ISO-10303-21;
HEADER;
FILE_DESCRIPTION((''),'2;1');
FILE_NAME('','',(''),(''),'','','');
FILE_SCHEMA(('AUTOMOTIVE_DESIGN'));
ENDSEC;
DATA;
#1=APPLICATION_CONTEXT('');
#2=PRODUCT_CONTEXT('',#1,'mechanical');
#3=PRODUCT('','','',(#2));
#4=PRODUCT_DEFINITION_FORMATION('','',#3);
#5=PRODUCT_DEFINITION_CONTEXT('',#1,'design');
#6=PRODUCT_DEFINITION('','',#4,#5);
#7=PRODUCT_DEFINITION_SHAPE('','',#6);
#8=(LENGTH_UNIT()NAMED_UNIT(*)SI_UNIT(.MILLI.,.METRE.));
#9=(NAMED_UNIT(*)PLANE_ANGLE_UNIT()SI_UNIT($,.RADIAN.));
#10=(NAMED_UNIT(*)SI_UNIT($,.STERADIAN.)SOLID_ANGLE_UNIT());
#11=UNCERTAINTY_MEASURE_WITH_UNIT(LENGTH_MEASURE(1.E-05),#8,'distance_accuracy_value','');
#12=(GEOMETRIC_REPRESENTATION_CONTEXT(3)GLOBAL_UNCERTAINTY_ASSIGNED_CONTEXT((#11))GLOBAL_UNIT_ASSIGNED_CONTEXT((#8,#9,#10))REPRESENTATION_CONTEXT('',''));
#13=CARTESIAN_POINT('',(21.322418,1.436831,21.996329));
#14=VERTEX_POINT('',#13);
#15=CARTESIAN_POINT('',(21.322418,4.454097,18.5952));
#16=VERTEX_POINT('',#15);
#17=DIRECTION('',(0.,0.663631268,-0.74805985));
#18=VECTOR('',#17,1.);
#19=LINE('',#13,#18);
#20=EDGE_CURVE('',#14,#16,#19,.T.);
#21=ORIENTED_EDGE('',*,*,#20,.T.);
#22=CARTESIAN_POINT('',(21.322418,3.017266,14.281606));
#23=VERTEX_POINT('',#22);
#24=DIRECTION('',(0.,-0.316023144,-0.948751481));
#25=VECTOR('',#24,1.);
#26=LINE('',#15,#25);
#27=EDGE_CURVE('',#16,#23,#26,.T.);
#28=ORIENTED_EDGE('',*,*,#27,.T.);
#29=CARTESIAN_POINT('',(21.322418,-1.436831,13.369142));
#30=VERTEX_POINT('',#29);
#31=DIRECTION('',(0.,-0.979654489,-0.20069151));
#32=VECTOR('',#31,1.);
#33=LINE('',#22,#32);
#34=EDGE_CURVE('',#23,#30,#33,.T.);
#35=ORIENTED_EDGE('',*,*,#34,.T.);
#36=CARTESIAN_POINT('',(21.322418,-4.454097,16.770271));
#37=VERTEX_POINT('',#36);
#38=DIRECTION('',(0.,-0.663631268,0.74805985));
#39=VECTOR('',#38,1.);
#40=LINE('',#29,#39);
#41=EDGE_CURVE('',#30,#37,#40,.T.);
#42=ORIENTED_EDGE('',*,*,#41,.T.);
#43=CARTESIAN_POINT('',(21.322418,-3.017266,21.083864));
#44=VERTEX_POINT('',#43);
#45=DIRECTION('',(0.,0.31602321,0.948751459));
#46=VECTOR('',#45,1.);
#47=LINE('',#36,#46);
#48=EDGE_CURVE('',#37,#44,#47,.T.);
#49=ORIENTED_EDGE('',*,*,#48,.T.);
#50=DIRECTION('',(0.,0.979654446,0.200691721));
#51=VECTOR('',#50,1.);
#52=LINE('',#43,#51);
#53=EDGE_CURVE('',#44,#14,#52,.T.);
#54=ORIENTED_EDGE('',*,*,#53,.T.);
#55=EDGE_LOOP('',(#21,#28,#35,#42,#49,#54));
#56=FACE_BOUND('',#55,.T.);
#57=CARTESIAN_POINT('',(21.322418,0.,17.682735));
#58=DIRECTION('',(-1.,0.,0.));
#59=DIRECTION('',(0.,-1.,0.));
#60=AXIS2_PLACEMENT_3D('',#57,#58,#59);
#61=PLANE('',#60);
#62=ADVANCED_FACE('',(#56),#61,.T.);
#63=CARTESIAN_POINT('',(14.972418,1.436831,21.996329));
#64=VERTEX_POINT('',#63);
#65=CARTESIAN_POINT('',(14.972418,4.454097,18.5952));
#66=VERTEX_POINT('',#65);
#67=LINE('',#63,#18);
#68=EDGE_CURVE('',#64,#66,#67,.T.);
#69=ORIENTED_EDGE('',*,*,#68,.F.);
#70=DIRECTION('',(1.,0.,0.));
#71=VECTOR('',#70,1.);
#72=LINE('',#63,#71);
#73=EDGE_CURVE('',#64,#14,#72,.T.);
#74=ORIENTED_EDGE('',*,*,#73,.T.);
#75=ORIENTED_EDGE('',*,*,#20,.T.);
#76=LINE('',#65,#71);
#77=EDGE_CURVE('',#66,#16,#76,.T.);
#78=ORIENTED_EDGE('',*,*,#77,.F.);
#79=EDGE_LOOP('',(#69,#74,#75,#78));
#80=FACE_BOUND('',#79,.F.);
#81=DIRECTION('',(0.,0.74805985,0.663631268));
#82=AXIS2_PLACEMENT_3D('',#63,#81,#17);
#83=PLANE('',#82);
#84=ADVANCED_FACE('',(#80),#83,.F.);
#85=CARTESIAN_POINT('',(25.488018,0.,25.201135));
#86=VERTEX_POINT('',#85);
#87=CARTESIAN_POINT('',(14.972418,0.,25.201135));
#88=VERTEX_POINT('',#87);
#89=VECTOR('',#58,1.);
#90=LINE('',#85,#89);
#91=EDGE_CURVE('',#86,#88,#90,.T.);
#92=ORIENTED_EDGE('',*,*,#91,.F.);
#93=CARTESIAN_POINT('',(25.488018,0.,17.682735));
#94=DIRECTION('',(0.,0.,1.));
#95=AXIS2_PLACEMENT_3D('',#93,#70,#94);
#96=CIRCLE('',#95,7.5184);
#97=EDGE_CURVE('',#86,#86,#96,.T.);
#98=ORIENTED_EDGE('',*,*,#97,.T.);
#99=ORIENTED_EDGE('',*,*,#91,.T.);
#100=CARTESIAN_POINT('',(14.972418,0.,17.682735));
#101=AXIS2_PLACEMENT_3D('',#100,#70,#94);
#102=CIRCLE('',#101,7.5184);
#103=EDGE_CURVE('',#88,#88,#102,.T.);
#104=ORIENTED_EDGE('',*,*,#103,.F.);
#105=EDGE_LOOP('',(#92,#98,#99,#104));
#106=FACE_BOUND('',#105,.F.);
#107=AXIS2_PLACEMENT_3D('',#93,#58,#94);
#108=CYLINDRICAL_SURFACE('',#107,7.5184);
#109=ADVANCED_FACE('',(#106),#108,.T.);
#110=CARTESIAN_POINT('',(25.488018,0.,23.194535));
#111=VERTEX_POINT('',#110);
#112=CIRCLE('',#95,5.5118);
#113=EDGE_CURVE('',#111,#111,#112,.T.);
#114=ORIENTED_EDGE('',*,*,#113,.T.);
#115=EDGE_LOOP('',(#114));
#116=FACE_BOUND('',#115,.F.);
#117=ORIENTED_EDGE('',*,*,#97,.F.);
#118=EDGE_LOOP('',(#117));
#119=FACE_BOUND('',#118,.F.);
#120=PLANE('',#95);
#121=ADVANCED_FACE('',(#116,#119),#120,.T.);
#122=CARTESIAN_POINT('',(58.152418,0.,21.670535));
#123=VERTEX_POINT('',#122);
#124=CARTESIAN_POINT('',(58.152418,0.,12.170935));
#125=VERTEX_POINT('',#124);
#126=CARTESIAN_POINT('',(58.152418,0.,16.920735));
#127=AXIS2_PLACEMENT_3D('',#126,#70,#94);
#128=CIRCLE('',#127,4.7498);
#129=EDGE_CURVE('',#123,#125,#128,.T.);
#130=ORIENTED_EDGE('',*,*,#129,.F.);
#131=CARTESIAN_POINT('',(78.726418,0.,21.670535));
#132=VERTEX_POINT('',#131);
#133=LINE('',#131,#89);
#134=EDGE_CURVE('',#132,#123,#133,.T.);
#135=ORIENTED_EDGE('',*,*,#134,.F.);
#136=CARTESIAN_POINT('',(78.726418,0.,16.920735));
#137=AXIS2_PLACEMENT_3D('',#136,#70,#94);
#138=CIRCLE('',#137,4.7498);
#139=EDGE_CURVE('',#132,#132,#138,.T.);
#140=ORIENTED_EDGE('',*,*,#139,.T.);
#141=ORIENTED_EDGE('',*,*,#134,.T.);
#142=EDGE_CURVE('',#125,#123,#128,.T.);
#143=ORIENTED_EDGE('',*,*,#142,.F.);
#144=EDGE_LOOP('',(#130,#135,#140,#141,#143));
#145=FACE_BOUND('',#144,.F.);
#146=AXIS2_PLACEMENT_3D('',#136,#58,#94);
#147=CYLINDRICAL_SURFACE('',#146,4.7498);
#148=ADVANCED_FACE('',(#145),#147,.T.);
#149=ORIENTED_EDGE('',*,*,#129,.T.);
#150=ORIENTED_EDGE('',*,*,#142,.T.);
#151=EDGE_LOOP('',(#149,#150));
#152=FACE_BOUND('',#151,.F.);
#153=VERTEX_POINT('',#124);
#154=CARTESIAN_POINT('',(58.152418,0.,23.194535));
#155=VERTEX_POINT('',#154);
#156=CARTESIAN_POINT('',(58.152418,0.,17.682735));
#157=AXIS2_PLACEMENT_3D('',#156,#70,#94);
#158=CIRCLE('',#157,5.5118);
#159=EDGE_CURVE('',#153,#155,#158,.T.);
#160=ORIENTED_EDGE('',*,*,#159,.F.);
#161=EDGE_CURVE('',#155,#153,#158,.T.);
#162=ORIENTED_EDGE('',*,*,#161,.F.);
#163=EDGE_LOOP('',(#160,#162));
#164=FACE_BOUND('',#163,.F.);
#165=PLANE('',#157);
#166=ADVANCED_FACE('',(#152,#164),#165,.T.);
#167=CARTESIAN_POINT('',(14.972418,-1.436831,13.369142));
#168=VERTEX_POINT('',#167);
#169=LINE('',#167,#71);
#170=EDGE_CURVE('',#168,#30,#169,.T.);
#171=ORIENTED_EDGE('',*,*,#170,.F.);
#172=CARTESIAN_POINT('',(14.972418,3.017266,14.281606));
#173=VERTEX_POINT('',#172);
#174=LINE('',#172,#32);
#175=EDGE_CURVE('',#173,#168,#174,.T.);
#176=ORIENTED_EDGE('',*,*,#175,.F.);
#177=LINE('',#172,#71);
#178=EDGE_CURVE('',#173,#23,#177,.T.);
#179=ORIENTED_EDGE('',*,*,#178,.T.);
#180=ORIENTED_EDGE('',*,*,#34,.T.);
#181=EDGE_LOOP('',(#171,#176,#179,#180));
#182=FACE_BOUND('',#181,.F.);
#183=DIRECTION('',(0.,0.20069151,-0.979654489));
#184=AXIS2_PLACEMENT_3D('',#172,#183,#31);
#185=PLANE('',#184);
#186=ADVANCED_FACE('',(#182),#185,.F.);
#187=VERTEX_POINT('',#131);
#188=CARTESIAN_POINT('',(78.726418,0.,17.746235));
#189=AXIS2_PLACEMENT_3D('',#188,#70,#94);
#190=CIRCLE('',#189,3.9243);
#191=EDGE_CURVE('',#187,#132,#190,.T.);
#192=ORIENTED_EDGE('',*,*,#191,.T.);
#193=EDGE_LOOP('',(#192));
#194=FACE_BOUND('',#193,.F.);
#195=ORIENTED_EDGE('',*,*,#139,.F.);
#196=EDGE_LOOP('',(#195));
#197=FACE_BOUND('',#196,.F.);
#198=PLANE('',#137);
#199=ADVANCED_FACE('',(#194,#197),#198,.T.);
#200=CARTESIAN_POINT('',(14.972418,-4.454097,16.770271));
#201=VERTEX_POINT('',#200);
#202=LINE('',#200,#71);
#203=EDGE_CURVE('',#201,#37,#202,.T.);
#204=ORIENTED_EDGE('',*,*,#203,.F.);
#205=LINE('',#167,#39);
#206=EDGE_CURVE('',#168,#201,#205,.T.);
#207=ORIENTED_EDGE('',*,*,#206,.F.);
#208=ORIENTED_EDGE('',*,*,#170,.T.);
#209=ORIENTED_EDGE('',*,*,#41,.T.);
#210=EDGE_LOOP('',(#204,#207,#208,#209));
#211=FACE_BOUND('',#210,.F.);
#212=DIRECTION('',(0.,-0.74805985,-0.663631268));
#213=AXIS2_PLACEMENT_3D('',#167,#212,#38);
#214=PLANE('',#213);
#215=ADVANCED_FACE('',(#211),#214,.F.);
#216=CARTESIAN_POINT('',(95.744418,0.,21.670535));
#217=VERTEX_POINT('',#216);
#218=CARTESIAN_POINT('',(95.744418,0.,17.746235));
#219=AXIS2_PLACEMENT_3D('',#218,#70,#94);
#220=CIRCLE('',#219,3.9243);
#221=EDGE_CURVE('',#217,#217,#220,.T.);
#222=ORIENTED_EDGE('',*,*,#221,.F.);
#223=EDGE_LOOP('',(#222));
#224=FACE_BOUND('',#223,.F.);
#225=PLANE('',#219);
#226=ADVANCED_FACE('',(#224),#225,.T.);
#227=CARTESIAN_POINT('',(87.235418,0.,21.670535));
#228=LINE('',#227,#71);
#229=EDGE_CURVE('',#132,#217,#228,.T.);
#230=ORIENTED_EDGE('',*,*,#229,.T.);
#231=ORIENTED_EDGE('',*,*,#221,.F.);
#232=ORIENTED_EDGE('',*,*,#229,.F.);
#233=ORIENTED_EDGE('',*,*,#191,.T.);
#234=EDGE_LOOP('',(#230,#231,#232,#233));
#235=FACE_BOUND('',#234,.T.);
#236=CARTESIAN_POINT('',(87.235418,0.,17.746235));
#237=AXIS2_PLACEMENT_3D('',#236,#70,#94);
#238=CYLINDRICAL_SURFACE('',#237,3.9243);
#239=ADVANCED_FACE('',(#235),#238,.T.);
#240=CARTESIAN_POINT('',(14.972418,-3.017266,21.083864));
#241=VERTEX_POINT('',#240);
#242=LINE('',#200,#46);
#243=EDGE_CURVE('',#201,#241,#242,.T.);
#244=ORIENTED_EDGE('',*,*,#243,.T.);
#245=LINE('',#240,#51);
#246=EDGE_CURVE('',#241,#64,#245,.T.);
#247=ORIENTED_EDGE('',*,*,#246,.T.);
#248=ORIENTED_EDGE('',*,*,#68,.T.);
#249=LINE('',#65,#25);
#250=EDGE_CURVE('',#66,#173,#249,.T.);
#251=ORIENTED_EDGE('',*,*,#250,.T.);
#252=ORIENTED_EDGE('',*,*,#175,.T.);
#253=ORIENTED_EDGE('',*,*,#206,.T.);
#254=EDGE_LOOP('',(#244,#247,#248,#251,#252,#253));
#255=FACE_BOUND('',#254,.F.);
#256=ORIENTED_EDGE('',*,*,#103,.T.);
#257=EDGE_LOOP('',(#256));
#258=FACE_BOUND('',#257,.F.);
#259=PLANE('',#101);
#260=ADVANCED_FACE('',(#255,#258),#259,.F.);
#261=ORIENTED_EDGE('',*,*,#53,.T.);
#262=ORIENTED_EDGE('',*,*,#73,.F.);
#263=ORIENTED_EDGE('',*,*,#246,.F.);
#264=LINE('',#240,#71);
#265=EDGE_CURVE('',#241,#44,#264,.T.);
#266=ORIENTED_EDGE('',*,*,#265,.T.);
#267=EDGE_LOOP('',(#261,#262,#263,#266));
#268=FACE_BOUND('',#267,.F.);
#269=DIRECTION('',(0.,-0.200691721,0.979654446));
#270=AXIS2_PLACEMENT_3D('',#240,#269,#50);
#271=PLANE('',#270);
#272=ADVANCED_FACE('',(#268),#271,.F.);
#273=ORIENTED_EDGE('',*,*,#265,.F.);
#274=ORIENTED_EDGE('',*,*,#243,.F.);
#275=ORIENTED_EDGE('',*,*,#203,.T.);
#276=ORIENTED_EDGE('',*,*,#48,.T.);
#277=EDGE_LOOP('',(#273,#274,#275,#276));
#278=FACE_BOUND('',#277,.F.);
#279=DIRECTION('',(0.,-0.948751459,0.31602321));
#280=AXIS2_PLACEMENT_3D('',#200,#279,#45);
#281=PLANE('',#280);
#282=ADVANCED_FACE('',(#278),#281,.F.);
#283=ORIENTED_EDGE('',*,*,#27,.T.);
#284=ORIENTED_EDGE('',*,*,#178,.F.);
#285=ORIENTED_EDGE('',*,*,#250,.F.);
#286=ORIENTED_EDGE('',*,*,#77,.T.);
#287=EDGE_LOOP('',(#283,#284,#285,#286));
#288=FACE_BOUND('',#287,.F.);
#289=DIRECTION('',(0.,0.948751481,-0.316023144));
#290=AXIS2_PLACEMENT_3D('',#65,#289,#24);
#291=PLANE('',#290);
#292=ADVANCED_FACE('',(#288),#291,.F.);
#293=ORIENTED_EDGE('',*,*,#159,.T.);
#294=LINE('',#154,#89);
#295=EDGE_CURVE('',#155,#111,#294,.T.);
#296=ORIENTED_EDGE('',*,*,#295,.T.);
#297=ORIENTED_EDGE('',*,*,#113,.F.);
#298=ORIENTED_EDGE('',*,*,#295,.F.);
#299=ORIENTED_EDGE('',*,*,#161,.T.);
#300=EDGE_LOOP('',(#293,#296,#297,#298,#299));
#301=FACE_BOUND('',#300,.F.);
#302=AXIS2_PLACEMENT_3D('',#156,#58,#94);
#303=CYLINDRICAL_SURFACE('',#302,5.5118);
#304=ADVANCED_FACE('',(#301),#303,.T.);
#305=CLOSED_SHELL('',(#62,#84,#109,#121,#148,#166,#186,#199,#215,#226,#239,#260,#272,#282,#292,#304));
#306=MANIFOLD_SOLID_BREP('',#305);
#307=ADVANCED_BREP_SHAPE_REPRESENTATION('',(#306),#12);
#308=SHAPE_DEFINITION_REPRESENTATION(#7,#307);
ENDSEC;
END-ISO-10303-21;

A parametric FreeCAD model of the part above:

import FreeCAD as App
import Part
import Sketcher
Q = App.Units.Quantity

doc = App.newDocument("Part")
params = doc.addObject("Spreadsheet::Sheet", "Params")
for row, (alias, value) in enumerate([
    ("sketch1_width", "0.414 in"),
    ("sketch1_height", "0.296 in"),
    ("revolution_angle", "360 deg"),
    ("sketch2_width", "1.286 in"),
    ("sketch2_height", "0.217 in"),
    ("revolution2_angle", "360 deg"),
    ("sketch3_width", "0.81 in"),
    ("sketch3_height", "0.187 in"),
    ("revolution3_angle", "360 deg"),
    ("sketch4_width", "0.67 in"),
    ("revolution4_angle", "360 deg"),
    ("sketch5_length", "0.179 in"),
    ("pocket1_length", "0.25 in"),
], start=1):
    params.set(f"A{row}", alias)
    params.set(f"B{row}", "=" + value)
    params.setAlias(f"B{row}", alias)

body = doc.addObject("PartDesign::Body", "Body")

# Sketch on XZ plane
sketch1 = doc.addObject("Sketcher::SketchObject", "Sketch")
body.addObject(sketch1)
sketch1.AttachmentSupport = (doc.XZ_Plane, [""])
sketch1.MapMode = "FlatFace"
sketch1.addGeometry([
    Part.LineSegment(App.Vector(25.488018, 25.201135, 0), App.Vector(14.972418, 25.201135, 0)),
    Part.LineSegment(App.Vector(14.972418, 25.201135, 0), App.Vector(14.972418, 17.682735, 0)),
    Part.LineSegment(App.Vector(14.972418, 17.682735, 0), App.Vector(25.488018, 17.682735, 0)),
    Part.LineSegment(App.Vector(25.488018, 17.682735, 0), App.Vector(25.488018, 25.201135, 0)),
], False)
sketch1.addGeometry(Part.LineSegment(App.Vector(14.972418, 17.682735, 0), App.Vector(25.488018, 17.682735, 0)), True)  # axis
sketch1.addConstraint([
    Sketcher.Constraint("Coincident", 0, 2, 1, 1),
    Sketcher.Constraint("Coincident", 1, 2, 2, 1),
    Sketcher.Constraint("Coincident", 2, 2, 3, 1),
    Sketcher.Constraint("Coincident", 3, 2, 0, 1),
    Sketcher.Constraint("Horizontal", 0),
    Sketcher.Constraint("Vertical", 1),
    Sketcher.Constraint("Horizontal", 2),
    Sketcher.Constraint("Vertical", 3),
    Sketcher.Constraint("Horizontal", 4),
    Sketcher.Constraint("Coincident", 4, 1, 1, 2),
    Sketcher.Constraint("Vertical", 3, 2, 4, 2),
    Sketcher.Constraint("DistanceX", 0, 2, 0, 1, Q("0.414 in")),
    Sketcher.Constraint("DistanceY", 1, 2, 1, 1, Q("0.296 in")),
    Sketcher.Constraint("DistanceX", -1, 1, 2, 2, Q("25.488018 mm")),
    Sketcher.Constraint("DistanceY", -1, 1, 0, 2, Q("25.201135 mm")),
])
sketch1.setExpression("Constraints[11]", "Params.sketch1_width")
sketch1.setExpression("Constraints[12]", "Params.sketch1_height")
revolution = doc.addObject("PartDesign::Revolution", "Revolution")
body.addObject(revolution)
revolution.Profile = sketch1
revolution.ReferenceAxis = (sketch1, ["Axis0"])
revolution.setExpression("Angle", "Params.revolution_angle")

# Sketch on XZ plane
sketch2 = doc.addObject("Sketcher::SketchObject", "Sketch001")
body.addObject(sketch2)
sketch2.AttachmentSupport = (doc.XZ_Plane, [""])
sketch2.MapMode = "FlatFace"
sketch2.addGeometry([
    Part.LineSegment(App.Vector(25.488018, 23.194535, 0), App.Vector(25.488018, 17.682735, 0)),
    Part.LineSegment(App.Vector(25.488018, 17.682735, 0), App.Vector(58.152418, 17.682735, 0)),
    Part.LineSegment(App.Vector(58.152418, 17.682735, 0), App.Vector(58.152418, 23.194535, 0)),
    Part.LineSegment(App.Vector(58.152418, 23.194535, 0), App.Vector(25.488018, 23.194535, 0)),
], False)
sketch2.addGeometry(Part.LineSegment(App.Vector(25.488018, 17.682735, 0), App.Vector(58.152418, 17.682735, 0)), True)  # axis
sketch2.addConstraint([
    Sketcher.Constraint("Coincident", 0, 2, 1, 1),
    Sketcher.Constraint("Coincident", 1, 2, 2, 1),
    Sketcher.Constraint("Coincident", 2, 2, 3, 1),
    Sketcher.Constraint("Coincident", 3, 2, 0, 1),
    Sketcher.Constraint("Vertical", 0),
    Sketcher.Constraint("Horizontal", 1),
    Sketcher.Constraint("Vertical", 2),
    Sketcher.Constraint("Horizontal", 3),
    Sketcher.Constraint("Horizontal", 4),
    Sketcher.Constraint("Coincident", 4, 1, 0, 2),
    Sketcher.Constraint("Vertical", 2, 2, 4, 2),
    Sketcher.Constraint("DistanceX", 1, 1, 1, 2, Q("1.286 in")),
    Sketcher.Constraint("DistanceY", 0, 2, 0, 1, Q("0.217 in")),
    Sketcher.Constraint("DistanceX", -1, 1, 0, 2, Q("25.488018 mm")),
    Sketcher.Constraint("DistanceY", -1, 1, 0, 2, Q("17.682735 mm")),
])
sketch2.setExpression("Constraints[11]", "Params.sketch2_width")
sketch2.setExpression("Constraints[12]", "Params.sketch2_height")
revolution2 = doc.addObject("PartDesign::Revolution", "Revolution001")
body.addObject(revolution2)
revolution2.Profile = sketch2
revolution2.ReferenceAxis = (sketch2, ["Axis0"])
revolution2.setExpression("Angle", "Params.revolution2_angle")

# Sketch on XZ plane
sketch3 = doc.addObject("Sketcher::SketchObject", "Sketch002")
body.addObject(sketch3)
sketch3.AttachmentSupport = (doc.XZ_Plane, [""])
sketch3.MapMode = "FlatFace"
sketch3.addGeometry([
    Part.LineSegment(App.Vector(58.152418, 21.670535, 0), App.Vector(58.152418, 16.920735, 0)),
    Part.LineSegment(App.Vector(58.152418, 16.920735, 0), App.Vector(78.726418, 16.920735, 0)),
    Part.LineSegment(App.Vector(78.726418, 16.920735, 0), App.Vector(78.726418, 21.670535, 0)),
    Part.LineSegment(App.Vector(78.726418, 21.670535, 0), App.Vector(58.152418, 21.670535, 0)),
], False)
sketch3.addGeometry(Part.LineSegment(App.Vector(58.152418, 16.920735, 0), App.Vector(78.726418, 16.920735, 0)), True)  # axis
sketch3.addConstraint([
    Sketcher.Constraint("Coincident", 0, 2, 1, 1),
    Sketcher.Constraint("Coincident", 1, 2, 2, 1),
    Sketcher.Constraint("Coincident", 2, 2, 3, 1),
    Sketcher.Constraint("Coincident", 3, 2, 0, 1),
    Sketcher.Constraint("Vertical", 0),
    Sketcher.Constraint("Horizontal", 1),
    Sketcher.Constraint("Vertical", 2),
    Sketcher.Constraint("Horizontal", 3),
    Sketcher.Constraint("Horizontal", 4),
    Sketcher.Constraint("Coincident", 4, 1, 0, 2),
    Sketcher.Constraint("Vertical", 2, 2, 4, 2),
    Sketcher.Constraint("DistanceX", 1, 1, 1, 2, Q("0.81 in")),
    Sketcher.Constraint("DistanceY", 0, 2, 0, 1, Q("0.187 in")),
    Sketcher.Constraint("DistanceX", -1, 1, 0, 2, Q("58.152418 mm")),
    Sketcher.Constraint("DistanceY", -1, 1, 0, 2, Q("16.920735 mm")),
])
sketch3.setExpression("Constraints[11]", "Params.sketch3_width")
sketch3.setExpression("Constraints[12]", "Params.sketch3_height")
revolution3 = doc.addObject("PartDesign::Revolution", "Revolution002")
body.addObject(revolution3)
revolution3.Profile = sketch3
revolution3.ReferenceAxis = (sketch3, ["Axis0"])
revolution3.setExpression("Angle", "Params.revolution3_angle")

# Sketch on XZ plane
sketch4 = doc.addObject("Sketcher::SketchObject", "Sketch003")
body.addObject(sketch4)
sketch4.AttachmentSupport = (doc.XZ_Plane, [""])
sketch4.MapMode = "FlatFace"
sketch4.addGeometry([
    Part.LineSegment(App.Vector(78.726418, 21.670535, 0), App.Vector(78.726418, 17.746235, 0)),
    Part.LineSegment(App.Vector(78.726418, 17.746235, 0), App.Vector(95.744418, 17.746235, 0)),
    Part.LineSegment(App.Vector(95.744418, 17.746235, 0), App.Vector(95.744418, 21.670535, 0)),
    Part.LineSegment(App.Vector(95.744418, 21.670535, 0), App.Vector(78.726418, 21.670535, 0)),
], False)
sketch4.addGeometry(Part.LineSegment(App.Vector(78.726418, 17.746235, 0), App.Vector(95.744418, 17.746235, 0)), True)  # axis
sketch4.addConstraint([
    Sketcher.Constraint("Coincident", 0, 2, 1, 1),
    Sketcher.Constraint("Coincident", 1, 2, 2, 1),
    Sketcher.Constraint("Coincident", 2, 2, 3, 1),
    Sketcher.Constraint("Coincident", 3, 2, 0, 1),
    Sketcher.Constraint("Vertical", 0),
    Sketcher.Constraint("Horizontal", 1),
    Sketcher.Constraint("Vertical", 2),
    Sketcher.Constraint("Horizontal", 3),
    Sketcher.Constraint("Horizontal", 4),
    Sketcher.Constraint("Coincident", 4, 1, 0, 2),
    Sketcher.Constraint("Vertical", 2, 2, 4, 2),
    Sketcher.Constraint("DistanceX", 1, 1, 1, 2, Q("0.67 in")),
    Sketcher.Constraint("DistanceY", 0, 2, 0, 1, Q("0.1545 in")),
    Sketcher.Constraint("DistanceX", -1, 1, 0, 2, Q("78.726418 mm")),
    Sketcher.Constraint("DistanceY", -1, 1, 0, 2, Q("17.746235 mm")),
])
sketch4.setExpression("Constraints[11]", "Params.sketch4_width")
revolution4 = doc.addObject("PartDesign::Revolution", "Revolution003")
body.addObject(revolution4)
revolution4.Profile = sketch4
revolution4.ReferenceAxis = (sketch4, ["Axis0"])
revolution4.setExpression("Angle", "Params.revolution4_angle")

# Sketch on YZ plane
sketch5 = doc.addObject("Sketcher::SketchObject", "Sketch004")
body.addObject(sketch5)
sketch5.AttachmentSupport = (doc.YZ_Plane, [""])
sketch5.MapMode = "FlatFace"
sketch5.AttachmentOffset = App.Placement(App.Vector(0, 0, 14.972418), App.Rotation())
sketch5.addGeometry([
    Part.LineSegment(App.Vector(-1.436831, 13.369142, 0), App.Vector(-4.454097, 16.770271, 0)),  # 0
    Part.LineSegment(App.Vector(-4.454097, 16.770271, 0), App.Vector(-3.017266, 21.083864, 0)),  # 1
    Part.LineSegment(App.Vector(-3.017266, 21.083864, 0), App.Vector(1.436831, 21.996329, 0)),  # 2
    Part.LineSegment(App.Vector(1.436831, 21.996329, 0), App.Vector(4.454097, 18.5952, 0)),  # 3
    Part.LineSegment(App.Vector(4.454097, 18.5952, 0), App.Vector(3.017266, 14.281606, 0)),  # 4
    Part.LineSegment(App.Vector(3.017266, 14.281606, 0), App.Vector(-1.436831, 13.369142, 0)),  # 5
], False)
sketch5.addConstraint([
    Sketcher.Constraint("Coincident", 0, 2, 1, 1),
    Sketcher.Constraint("Coincident", 1, 2, 2, 1),
    Sketcher.Constraint("Coincident", 2, 2, 3, 1),
    Sketcher.Constraint("Coincident", 3, 2, 4, 1),
    Sketcher.Constraint("Coincident", 4, 2, 5, 1),
    Sketcher.Constraint("Coincident", 5, 2, 0, 1),
    Sketcher.Constraint("Parallel", 0, 3),
    Sketcher.Constraint("Parallel", 1, 4),
    Sketcher.Constraint("Parallel", 2, 5),
    Sketcher.Constraint("Equal", 0, 1),
    Sketcher.Constraint("Equal", 1, 2),
    Sketcher.Constraint("Equal", 2, 3),
    Sketcher.Constraint("Distance", 0, Q("0.179 in")),
    Sketcher.Constraint("DistanceY", -1, 1, 3, 2, Q("18.5952 mm")),
    Sketcher.Constraint("DistanceY", -1, 1, 0, 2, Q("16.770271 mm")),
    Sketcher.Constraint("DistanceX", -1, 1, 2, 2, Q("1.436831 mm")),
    Sketcher.Constraint("DistanceY", -1, 1, 2, 2, Q("21.996329 mm")),
    Sketcher.Constraint("DistanceX", 5, 2, -1, 1, Q("1.436831 mm")),
])
sketch5.setExpression("Constraints[12]", "Params.sketch5_length")
pocket1 = doc.addObject("PartDesign::Pocket", "Pocket")
body.addObject(pocket1)
pocket1.Profile = sketch5
pocket1.setExpression("Length", "Params.pocket1_length")
pocket1.Reversed = True

doc.recompute()
